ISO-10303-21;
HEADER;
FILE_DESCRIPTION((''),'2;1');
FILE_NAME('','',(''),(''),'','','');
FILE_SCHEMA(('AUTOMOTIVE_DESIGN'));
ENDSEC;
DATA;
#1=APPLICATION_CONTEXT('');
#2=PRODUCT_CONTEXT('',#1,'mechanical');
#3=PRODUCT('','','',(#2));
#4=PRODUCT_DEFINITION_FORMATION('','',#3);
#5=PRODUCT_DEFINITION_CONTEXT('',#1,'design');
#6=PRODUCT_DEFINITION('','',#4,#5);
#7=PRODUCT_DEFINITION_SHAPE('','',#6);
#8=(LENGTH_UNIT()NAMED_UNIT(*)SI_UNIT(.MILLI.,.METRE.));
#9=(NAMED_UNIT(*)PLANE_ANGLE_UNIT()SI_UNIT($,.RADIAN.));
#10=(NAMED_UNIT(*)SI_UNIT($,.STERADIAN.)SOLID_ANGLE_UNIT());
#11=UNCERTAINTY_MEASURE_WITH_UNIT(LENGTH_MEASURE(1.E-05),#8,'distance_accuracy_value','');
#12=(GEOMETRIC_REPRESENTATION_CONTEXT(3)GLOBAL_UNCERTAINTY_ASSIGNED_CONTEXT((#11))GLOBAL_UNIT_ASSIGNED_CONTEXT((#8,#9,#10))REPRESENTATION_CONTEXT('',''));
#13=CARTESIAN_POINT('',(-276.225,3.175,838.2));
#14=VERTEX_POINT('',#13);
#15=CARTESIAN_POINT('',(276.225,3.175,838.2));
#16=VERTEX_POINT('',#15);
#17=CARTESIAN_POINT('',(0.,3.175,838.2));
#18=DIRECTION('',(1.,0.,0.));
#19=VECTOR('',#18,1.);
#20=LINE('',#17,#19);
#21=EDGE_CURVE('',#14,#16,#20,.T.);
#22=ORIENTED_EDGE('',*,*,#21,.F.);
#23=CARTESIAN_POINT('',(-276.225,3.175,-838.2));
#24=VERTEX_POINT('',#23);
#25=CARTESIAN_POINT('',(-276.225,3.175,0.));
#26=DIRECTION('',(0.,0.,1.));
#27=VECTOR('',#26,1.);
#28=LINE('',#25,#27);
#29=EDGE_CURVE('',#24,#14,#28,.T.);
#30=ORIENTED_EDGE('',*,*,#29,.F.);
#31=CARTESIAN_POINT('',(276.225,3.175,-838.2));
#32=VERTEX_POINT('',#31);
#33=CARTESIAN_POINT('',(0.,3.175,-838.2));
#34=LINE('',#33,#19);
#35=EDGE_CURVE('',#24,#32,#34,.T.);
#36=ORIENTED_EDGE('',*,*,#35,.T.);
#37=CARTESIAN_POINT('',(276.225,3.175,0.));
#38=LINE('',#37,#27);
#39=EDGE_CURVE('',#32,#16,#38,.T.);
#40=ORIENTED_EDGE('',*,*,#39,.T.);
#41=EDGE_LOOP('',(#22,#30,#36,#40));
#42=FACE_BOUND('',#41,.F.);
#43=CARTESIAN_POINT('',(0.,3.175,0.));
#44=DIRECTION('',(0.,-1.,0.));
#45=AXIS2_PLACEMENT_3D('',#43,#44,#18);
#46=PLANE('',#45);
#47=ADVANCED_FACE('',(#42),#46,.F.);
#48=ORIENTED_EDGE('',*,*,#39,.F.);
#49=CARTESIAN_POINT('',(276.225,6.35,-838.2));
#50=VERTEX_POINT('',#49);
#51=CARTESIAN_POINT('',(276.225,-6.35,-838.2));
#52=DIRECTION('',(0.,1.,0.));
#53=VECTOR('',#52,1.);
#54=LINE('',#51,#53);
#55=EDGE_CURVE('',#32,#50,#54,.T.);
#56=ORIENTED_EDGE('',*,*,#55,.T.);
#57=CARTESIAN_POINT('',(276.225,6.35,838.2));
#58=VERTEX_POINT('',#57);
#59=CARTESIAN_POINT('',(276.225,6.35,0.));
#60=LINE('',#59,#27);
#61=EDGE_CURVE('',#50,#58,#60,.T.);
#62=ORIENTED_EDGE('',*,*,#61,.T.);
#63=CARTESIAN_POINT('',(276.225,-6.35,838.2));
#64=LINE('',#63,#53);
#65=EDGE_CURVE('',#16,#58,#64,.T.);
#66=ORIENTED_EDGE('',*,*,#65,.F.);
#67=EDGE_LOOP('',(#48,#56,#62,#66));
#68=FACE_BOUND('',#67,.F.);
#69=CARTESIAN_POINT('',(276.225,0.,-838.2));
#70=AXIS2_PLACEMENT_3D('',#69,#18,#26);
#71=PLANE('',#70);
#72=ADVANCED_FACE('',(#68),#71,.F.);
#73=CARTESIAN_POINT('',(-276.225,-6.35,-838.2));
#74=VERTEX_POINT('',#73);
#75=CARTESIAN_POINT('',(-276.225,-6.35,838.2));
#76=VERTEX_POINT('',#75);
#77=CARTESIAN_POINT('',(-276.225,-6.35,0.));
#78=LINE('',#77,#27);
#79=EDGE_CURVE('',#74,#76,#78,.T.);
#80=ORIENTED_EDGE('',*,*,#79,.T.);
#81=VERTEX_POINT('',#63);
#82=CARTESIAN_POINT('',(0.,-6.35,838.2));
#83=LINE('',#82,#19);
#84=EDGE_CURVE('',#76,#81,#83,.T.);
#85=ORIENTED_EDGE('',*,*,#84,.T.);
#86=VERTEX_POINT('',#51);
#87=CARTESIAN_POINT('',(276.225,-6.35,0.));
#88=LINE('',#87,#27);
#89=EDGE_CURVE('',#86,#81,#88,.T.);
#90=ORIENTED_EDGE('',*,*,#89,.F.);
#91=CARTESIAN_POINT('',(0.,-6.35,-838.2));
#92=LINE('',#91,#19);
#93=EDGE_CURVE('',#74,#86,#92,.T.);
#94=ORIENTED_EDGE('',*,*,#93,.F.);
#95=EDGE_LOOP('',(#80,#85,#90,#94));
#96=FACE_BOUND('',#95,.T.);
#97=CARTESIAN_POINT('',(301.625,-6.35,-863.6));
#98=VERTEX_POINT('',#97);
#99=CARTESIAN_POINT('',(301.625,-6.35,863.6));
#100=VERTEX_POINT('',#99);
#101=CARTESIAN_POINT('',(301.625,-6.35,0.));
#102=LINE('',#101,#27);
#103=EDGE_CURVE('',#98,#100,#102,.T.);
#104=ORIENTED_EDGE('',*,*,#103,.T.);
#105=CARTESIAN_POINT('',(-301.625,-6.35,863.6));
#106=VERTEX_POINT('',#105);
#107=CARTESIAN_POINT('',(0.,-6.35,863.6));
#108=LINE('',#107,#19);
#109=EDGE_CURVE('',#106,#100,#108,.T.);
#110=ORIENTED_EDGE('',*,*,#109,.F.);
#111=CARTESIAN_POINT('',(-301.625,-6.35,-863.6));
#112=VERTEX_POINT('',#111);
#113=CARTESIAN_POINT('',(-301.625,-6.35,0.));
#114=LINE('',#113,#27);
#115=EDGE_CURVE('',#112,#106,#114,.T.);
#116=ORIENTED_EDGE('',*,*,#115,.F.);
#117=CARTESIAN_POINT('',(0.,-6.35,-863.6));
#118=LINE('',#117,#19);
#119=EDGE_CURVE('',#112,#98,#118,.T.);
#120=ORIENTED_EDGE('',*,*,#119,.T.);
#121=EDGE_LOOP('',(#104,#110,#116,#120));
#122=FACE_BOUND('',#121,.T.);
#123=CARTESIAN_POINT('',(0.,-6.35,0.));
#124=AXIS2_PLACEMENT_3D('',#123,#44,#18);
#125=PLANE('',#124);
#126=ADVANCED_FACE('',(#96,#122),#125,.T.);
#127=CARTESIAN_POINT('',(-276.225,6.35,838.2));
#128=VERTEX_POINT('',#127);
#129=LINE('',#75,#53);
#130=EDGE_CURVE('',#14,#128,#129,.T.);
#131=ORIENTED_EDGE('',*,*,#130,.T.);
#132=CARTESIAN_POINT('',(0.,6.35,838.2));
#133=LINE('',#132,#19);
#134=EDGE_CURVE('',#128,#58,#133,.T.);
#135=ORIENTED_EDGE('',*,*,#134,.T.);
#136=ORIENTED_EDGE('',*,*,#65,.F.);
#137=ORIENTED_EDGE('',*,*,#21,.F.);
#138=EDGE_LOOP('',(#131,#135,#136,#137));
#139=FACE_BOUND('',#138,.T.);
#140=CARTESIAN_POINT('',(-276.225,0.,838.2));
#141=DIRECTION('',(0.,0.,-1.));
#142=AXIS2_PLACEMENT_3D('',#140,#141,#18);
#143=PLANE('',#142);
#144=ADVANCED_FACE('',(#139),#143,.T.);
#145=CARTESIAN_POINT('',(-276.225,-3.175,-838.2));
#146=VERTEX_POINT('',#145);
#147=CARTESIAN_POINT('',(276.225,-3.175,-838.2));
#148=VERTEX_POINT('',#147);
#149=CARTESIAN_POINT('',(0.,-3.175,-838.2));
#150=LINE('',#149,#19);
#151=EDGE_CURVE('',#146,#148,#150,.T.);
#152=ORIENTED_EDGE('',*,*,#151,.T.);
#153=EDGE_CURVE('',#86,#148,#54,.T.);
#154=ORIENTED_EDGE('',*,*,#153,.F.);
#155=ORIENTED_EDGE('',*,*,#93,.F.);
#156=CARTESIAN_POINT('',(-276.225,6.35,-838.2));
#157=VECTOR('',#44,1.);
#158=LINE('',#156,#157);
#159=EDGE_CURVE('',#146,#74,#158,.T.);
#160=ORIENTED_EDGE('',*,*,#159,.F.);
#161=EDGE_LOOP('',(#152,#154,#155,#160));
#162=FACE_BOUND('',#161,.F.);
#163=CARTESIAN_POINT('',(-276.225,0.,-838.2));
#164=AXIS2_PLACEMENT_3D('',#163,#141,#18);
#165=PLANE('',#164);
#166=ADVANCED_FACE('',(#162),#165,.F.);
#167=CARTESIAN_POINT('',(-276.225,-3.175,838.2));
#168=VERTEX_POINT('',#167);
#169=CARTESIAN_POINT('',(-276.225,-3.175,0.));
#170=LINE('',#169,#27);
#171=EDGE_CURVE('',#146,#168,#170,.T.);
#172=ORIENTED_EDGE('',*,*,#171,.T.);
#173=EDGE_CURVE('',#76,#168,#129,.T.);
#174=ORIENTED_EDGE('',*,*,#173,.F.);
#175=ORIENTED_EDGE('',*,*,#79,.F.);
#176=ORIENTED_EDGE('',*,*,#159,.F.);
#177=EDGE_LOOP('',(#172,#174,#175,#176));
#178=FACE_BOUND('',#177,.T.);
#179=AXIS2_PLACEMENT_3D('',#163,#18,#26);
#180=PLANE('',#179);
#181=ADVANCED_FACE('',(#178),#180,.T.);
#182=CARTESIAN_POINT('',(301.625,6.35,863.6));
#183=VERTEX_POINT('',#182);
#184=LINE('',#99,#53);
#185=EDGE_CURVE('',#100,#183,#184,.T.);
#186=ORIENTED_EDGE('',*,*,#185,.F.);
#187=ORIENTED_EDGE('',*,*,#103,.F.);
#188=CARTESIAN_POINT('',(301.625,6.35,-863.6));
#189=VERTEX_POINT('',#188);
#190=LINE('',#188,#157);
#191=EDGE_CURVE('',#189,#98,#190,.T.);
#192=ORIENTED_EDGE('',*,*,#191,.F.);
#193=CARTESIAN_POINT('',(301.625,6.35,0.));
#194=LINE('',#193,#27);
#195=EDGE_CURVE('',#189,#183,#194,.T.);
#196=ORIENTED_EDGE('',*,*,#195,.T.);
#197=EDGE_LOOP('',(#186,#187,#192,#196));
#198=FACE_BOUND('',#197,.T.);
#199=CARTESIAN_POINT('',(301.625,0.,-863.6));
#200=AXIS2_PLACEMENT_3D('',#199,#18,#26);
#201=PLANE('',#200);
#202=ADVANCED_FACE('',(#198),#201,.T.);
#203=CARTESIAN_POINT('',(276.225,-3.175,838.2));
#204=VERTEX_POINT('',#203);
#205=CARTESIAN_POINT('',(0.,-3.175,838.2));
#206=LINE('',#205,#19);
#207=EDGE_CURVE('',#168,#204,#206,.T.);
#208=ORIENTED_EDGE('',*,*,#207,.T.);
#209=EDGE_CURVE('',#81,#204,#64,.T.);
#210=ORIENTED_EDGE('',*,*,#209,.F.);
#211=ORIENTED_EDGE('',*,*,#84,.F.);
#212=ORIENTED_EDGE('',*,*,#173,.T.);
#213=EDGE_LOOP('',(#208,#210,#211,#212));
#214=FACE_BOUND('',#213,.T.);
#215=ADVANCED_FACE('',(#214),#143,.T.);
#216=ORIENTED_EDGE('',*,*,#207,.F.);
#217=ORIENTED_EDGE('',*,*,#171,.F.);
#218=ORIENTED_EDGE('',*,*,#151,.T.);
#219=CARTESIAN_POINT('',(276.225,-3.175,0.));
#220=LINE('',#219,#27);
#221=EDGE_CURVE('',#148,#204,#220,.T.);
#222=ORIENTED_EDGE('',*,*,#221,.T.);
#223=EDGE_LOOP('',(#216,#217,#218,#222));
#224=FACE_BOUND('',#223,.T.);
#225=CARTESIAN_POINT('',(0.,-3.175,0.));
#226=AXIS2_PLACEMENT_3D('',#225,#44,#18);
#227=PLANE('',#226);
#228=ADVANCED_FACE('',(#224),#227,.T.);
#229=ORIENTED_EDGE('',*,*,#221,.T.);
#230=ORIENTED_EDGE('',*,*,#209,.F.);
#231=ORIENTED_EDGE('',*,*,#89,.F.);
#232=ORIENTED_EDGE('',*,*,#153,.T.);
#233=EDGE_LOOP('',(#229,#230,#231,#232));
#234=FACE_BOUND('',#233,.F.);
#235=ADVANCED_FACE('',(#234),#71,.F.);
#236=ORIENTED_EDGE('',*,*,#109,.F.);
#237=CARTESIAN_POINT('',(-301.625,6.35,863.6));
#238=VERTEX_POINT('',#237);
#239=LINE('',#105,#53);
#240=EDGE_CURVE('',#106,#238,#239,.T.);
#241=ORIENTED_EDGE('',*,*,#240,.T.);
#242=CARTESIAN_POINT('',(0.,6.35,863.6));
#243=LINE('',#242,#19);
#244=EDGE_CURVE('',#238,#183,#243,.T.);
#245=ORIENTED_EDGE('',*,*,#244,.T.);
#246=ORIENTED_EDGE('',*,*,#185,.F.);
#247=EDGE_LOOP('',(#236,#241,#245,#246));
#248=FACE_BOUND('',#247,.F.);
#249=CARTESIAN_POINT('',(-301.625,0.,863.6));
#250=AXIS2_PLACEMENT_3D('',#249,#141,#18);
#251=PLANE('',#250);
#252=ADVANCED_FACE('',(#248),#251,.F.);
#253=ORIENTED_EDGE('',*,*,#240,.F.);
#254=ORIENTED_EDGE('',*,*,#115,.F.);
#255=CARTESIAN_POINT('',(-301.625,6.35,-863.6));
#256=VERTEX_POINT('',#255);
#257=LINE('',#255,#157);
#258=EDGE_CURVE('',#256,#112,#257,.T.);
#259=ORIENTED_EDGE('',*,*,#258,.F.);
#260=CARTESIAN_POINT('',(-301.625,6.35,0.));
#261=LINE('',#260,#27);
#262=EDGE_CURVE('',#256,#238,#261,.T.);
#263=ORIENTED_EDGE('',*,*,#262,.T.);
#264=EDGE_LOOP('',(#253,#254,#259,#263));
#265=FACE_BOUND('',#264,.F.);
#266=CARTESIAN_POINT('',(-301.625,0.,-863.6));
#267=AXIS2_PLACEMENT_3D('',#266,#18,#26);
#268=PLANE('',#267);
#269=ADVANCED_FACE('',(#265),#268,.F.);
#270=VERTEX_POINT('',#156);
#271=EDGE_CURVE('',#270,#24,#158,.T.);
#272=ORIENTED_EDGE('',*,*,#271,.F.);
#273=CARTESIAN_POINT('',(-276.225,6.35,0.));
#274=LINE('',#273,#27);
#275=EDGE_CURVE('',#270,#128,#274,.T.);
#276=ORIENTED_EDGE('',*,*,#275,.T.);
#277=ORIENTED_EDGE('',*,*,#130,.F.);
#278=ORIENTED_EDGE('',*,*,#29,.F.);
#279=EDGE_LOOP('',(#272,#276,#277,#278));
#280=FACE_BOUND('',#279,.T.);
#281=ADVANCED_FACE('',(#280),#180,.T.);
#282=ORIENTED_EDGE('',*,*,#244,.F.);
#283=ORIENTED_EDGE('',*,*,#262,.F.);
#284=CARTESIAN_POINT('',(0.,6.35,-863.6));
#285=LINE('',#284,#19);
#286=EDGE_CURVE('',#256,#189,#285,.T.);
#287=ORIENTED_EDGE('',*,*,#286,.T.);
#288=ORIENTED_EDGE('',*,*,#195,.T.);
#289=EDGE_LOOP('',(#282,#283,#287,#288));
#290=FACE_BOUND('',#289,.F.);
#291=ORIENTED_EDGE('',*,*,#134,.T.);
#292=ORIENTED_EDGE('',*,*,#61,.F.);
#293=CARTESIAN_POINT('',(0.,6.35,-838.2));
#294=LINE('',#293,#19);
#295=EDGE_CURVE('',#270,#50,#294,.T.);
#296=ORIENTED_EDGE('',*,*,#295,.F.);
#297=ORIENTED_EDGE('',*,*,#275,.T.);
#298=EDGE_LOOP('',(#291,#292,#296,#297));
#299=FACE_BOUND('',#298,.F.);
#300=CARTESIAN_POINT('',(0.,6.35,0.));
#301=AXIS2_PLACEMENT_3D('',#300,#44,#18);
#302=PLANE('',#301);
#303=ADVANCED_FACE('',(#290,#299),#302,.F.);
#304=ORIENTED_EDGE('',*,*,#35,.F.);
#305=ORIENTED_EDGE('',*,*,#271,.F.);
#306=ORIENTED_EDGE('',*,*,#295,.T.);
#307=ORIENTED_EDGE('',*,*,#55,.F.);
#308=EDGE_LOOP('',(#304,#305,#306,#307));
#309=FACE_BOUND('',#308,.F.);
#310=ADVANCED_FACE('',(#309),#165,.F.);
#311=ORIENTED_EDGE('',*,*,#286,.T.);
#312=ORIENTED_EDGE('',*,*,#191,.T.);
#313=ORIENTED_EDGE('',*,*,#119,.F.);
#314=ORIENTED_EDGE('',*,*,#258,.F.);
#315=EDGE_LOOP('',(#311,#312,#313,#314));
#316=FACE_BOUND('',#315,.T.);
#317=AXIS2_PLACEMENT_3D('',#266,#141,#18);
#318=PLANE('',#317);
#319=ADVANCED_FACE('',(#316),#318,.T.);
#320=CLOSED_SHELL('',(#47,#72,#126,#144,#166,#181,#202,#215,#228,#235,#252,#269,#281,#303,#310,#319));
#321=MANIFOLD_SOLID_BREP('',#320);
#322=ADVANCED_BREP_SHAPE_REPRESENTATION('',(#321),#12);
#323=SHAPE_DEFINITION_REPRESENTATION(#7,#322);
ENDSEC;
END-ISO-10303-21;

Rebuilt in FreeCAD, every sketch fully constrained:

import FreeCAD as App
import Part
import Sketcher
from FreeCAD import Vector
Q = App.Units.Quantity

doc = App.newDocument("Part")
body = doc.addObject("PartDesign::Body", "Body")

sketch1 = doc.addObject("Sketcher::SketchObject", "Sketch")
body.addObject(sketch1)
sketch1.AttachmentSupport = (doc.XZ_Plane, [""])
sketch1.MapMode = "FlatFace"
sketch1.addGeometry([
    Part.LineSegment(Vector(-302, 864, 0), Vector(-302, -864, 0)),
    Part.LineSegment(Vector(-302, -864, 0), Vector(302, -864, 0)),
    Part.LineSegment(Vector(302, -864, 0), Vector(302, 864, 0)),
    Part.LineSegment(Vector(302, 864, 0), Vector(-302, 864, 0)),
    Part.LineSegment(Vector(276, -838, 0), Vector(-276, -838, 0)),
    Part.LineSegment(Vector(-276, -838, 0), Vector(-276, 838, 0)),
    Part.LineSegment(Vector(-276, 838, 0), Vector(276, 838, 0)),
    Part.LineSegment(Vector(276, 838, 0), Vector(276, -838, 0)),
], False)
sketch1.addConstraint([
    Sketcher.Constraint("Coincident", 0, 2, 1, 1),
    Sketcher.Constraint("Coincident", 1, 2, 2, 1),
    Sketcher.Constraint("Coincident", 2, 2, 3, 1),
    Sketcher.Constraint("Coincident", 3, 2, 0, 1),
    Sketcher.Constraint("Coincident", 4, 2, 5, 1),
    Sketcher.Constraint("Coincident", 5, 2, 6, 1),
    Sketcher.Constraint("Coincident", 6, 2, 7, 1),
    Sketcher.Constraint("Coincident", 7, 2, 4, 1),
    Sketcher.Constraint("Vertical", 0),
    Sketcher.Constraint("Horizontal", 1),
    Sketcher.Constraint("Vertical", 2),
    Sketcher.Constraint("Horizontal", 3),
    Sketcher.Constraint("Horizontal", 4),
    Sketcher.Constraint("Vertical", 5),
    Sketcher.Constraint("Horizontal", 6),
    Sketcher.Constraint("Vertical", 7),
    Sketcher.Constraint("Symmetric", 0, 2, 2, 2, -1, 1),
    Sketcher.Constraint("Symmetric", 4, 2, 6, 2, -1, 1),
    Sketcher.Constraint("DistanceY", 0, 2, 0, 1, Q("68 in")),
    Sketcher.Constraint("DistanceY", 5, 1, 5, 2, Q("66 in")),
    Sketcher.Constraint("DistanceX", 0, 2, 4, 2, Q("1 in")),
    Sketcher.Constraint("DistanceX", 1, 1, 1, 2, Q("23.75 in")),
])
pad1 = doc.addObject("PartDesign::Pad", "Pad")
body.addObject(pad1)
pad1.Profile = sketch1
pad1.Length = Q("0.5 in")
pad1.Midplane = True

sketch2 = doc.addObject("Sketcher::SketchObject", "Sketch001")
body.addObject(sketch2)
sketch2.AttachmentSupport = (doc.XZ_Plane, [""])
sketch2.MapMode = "FlatFace"
sketch2.addGeometry([
    Part.LineSegment(Vector(-276, 838, 0), Vector(-276, -838, 0)),
    Part.LineSegment(Vector(-276, -838, 0), Vector(276, -838, 0)),
    Part.LineSegment(Vector(276, -838, 0), Vector(276, 838, 0)),
    Part.LineSegment(Vector(276, 838, 0), Vector(-276, 838, 0)),
], False)
sketch2.addConstraint([
    Sketcher.Constraint("Coincident", 0, 2, 1, 1),
    Sketcher.Constraint("Coincident", 1, 2, 2, 1),
    Sketcher.Constraint("Coincident", 2, 2, 3, 1),
    Sketcher.Constraint("Coincident", 3, 2, 0, 1),
    Sketcher.Constraint("Vertical", 0),
    Sketcher.Constraint("Horizontal", 1),
    Sketcher.Constraint("Vertical", 2),
    Sketcher.Constraint("Horizontal", 3),
    Sketcher.Constraint("Symmetric", 0, 2, 2, 2, -1, 1),
    Sketcher.Constraint("DistanceY", 0, 2, 0, 1, Q("66 in")),
    Sketcher.Constraint("DistanceX", 1, 1, 1, 2, Q("21.75 in")),
])
pad2 = doc.addObject("PartDesign::Pad", "Pad001")
body.addObject(pad2)
pad2.Profile = sketch2
pad2.Length = Q("0.25 in")
pad2.Midplane = True

doc.recompute()
